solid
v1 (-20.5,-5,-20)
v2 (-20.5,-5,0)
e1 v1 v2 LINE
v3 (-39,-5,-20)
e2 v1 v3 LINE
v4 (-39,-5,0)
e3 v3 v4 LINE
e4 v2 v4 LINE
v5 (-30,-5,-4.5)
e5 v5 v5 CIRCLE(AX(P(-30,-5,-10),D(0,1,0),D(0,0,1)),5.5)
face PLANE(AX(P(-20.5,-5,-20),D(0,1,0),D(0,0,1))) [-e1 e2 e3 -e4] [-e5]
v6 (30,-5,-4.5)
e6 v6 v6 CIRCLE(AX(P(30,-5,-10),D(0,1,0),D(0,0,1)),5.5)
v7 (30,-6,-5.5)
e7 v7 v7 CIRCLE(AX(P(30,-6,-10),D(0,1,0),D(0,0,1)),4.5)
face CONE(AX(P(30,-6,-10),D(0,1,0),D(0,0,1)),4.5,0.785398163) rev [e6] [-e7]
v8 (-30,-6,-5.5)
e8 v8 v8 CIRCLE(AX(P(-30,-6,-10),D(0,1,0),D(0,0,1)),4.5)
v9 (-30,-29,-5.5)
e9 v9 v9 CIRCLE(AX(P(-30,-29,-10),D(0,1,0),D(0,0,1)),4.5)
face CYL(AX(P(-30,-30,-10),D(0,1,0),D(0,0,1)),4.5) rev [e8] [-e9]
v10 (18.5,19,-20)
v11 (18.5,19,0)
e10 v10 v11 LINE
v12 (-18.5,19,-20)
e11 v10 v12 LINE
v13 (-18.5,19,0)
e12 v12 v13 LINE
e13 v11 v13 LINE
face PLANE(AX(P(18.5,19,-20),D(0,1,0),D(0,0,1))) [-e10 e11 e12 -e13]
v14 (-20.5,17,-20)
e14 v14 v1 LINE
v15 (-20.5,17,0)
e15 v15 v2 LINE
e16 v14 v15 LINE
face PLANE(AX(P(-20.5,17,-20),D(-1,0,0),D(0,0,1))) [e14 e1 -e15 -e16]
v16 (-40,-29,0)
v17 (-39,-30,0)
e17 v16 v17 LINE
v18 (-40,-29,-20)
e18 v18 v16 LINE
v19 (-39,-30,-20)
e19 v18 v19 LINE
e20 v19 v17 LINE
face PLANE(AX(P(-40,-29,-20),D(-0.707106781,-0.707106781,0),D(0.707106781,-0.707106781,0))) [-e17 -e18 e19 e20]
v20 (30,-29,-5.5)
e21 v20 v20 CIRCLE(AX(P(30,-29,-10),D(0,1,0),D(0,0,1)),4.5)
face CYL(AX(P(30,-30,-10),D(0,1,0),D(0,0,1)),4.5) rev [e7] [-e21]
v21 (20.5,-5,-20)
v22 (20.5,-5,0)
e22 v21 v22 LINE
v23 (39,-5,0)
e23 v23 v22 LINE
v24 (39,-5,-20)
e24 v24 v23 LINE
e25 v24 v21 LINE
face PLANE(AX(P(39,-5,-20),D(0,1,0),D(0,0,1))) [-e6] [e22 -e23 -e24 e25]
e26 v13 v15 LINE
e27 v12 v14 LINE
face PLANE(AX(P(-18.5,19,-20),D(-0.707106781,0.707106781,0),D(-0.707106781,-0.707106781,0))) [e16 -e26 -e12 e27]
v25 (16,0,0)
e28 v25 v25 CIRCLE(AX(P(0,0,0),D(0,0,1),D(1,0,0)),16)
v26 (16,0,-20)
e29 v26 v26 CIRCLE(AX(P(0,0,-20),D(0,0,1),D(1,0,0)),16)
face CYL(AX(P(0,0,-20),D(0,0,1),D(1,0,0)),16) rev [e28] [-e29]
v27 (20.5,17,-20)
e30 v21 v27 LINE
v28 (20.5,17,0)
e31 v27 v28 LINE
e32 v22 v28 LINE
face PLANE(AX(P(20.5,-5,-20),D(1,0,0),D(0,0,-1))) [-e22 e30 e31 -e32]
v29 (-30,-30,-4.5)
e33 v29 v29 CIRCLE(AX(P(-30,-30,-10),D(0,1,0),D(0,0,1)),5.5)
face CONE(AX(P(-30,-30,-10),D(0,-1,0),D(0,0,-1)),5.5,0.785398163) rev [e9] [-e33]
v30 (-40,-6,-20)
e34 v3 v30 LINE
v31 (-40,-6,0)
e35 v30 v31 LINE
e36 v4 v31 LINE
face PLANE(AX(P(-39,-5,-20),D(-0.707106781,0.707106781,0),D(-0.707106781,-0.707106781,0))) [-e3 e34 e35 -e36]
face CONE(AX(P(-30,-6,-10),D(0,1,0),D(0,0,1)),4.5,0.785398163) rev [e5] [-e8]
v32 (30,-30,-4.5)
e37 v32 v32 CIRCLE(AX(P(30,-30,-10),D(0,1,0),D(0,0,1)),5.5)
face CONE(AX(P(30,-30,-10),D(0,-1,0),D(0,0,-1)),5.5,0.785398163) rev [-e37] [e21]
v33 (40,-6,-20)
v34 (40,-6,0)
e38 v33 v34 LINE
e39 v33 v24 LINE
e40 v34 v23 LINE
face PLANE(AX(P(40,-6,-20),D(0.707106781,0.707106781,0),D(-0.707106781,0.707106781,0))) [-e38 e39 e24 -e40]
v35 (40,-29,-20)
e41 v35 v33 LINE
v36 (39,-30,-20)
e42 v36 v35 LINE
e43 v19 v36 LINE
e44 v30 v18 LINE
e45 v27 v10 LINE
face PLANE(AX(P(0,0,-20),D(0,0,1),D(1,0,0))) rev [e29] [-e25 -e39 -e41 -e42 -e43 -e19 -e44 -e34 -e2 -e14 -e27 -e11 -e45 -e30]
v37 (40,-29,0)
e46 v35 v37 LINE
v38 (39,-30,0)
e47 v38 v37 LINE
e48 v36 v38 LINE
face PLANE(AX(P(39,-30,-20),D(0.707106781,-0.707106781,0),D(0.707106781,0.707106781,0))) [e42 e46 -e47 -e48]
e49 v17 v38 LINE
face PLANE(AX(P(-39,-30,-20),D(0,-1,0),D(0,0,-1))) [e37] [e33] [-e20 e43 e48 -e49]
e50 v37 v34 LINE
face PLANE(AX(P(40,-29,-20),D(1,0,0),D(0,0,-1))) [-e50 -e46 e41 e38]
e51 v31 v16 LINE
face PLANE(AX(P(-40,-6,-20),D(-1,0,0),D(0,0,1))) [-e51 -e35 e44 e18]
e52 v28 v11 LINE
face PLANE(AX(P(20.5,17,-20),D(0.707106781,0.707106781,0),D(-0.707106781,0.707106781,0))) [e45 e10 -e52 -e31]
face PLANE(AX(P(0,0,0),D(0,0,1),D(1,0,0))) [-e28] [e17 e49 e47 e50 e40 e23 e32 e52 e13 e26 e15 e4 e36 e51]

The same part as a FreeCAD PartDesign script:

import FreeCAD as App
import Part
import Sketcher

V = App.Vector


def add_polygon(sketch, points):
    """Adds a closed chain of lines whose ends are joined by coincident constraints."""
    first, n = sketch.GeometryCount, len(points)
    for a, b in zip(points, points[1:] + points[:1]):
        sketch.addGeometry(Part.LineSegment(App.Vector(*a, 0), App.Vector(*b, 0)), False)
    for i in range(n):
        sketch.addConstraint(Sketcher.Constraint("Coincident", first + i, 2, first + (i + 1) % n, 1))

doc = App.newDocument("Part")
params = doc.addObject("Spreadsheet::Sheet", "Params")
for row, (alias, value) in enumerate([
    ("sketch1_diameter", "32 mm"),
    ("sketch1_width", "78 mm"),
    ("sketch1_width2", "37 mm"),
    ("sketch1_height", "23 mm"),
    ("sketch1_height2", "22 mm"),
    ("pad1_length", "20 mm"),
    ("sketch2_height", "25 mm"),
    ("sketch2_height2", "23 mm"),
    ("sketch2_width", "5.5 mm"),
    ("groove_angle", "360 deg"),
    ("sketch3_height", "25 mm"),
    ("sketch3_height2", "23 mm"),
    ("sketch3_width", "5.5 mm"),
    ("groove2_angle", "360 deg"),
], start=1):
    params.set(f"A{row}", alias)
    params.set(f"B{row}", "=" + value)
    params.setAlias(f"B{row}", alias)

body = doc.addObject("PartDesign::Body", "Body")

# Sketch on XY plane
sketch1 = body.newObject("Sketcher::SketchObject", "Sketch")
sketch1.AttachmentSupport = (doc.getObject("XY_Plane"), [""])
sketch1.MapMode = "FlatFace"
add_polygon(sketch1, [(-40, -29), (-39, -30), (39, -30), (40, -29), (40, -6), (39, -5), (20.5, -5), (20.5, 17), (18.5, 19), (-18.5, 19), (-20.5, 17), (-20.5, -5), (-39, -5), (-40, -6)])  # lines 0-13
sketch1.addGeometry(Part.Circle(V(0, 0, 0), V(0, 0, 1), 16), False)  # 14
sketch1.addConstraint([
    Sketcher.Constraint("Horizontal", 1),
    Sketcher.Constraint("Vertical", 3),
    Sketcher.Constraint("Horizontal", 5),
    Sketcher.Constraint("Vertical", 6),
    Sketcher.Constraint("Horizontal", 8),
    Sketcher.Constraint("Vertical", 10),
    Sketcher.Constraint("Horizontal", 11),
    Sketcher.Constraint("Vertical", 13),
    Sketcher.Constraint("Coincident", 14, 3, -1, 1),
    Sketcher.Constraint("Symmetric", 6, 2, 9, 2, -2),
    Sketcher.Constraint("Symmetric", 4, 2, 11, 2, -2),
    Sketcher.Constraint("Symmetric", 3, 2, 12, 2, -2),
    Sketcher.Constraint("Perpendicular", 0, 2),
    Sketcher.Constraint("Perpendicular", 2, 4),
    Sketcher.Constraint("Parallel", 4, 7),
    Sketcher.Constraint("Perpendicular", 7, 9),
    Sketcher.Constraint("Parallel", 9, 12),
    Sketcher.Constraint("Horizontal", 2, 2, 13, 2),
    Sketcher.Constraint("Vertical", 1, 2, 4, 2),
    Sketcher.Constraint("Diameter", 14, 32.0),
    Sketcher.Constraint("DistanceX", 1, 1, 1, 2, 78.0),
    Sketcher.Constraint("DistanceX", 8, 2, 8, 1, 37.0),
    Sketcher.Constraint("DistanceY", 3, 1, 3, 2, 23.0),
    Sketcher.Constraint("DistanceY", 6, 1, 6, 2, 22.0),
    Sketcher.Constraint("DistanceX", 5, 2, 5, 1, 18.5),
    Sketcher.Constraint("DistanceY", 0, 2, -1, 1, 30.0),
    Sketcher.Constraint("DistanceX", -1, 1, 2, 2, 40.0),
])
sketch1.setExpression("Constraints[33]", "Params.sketch1_diameter")
sketch1.setExpression("Constraints[34]", "Params.sketch1_width")
sketch1.setExpression("Constraints[35]", "Params.sketch1_width2")
sketch1.setExpression("Constraints[36]", "Params.sketch1_height")
sketch1.setExpression("Constraints[37]", "Params.sketch1_height2")
pad1 = body.newObject("PartDesign::Pad", "Pad")
pad1.Profile = sketch1
pad1.setExpression("Length", "Params.pad1_length")
pad1.Reversed = True

# Sketch on XY plane
sketch2 = body.newObject("Sketcher::SketchObject", "Sketch001")
sketch2.AttachmentSupport = (doc.getObject("XY_Plane"), [""])
sketch2.MapMode = "FlatFace"
sketch2.AttachmentOffset = App.Placement(V(0, 0, -10), App.Rotation())
add_polygon(sketch2, [(35.5, -5), (30, -5), (30, -30), (35.5, -30), (34.5, -29), (34.5, -6)])  # lines 0-5
sketch2.addGeometry(Part.LineSegment(V(30, -30, 0), V(30, -5, 0)), True)  # axis
sketch2.addConstraint([
    Sketcher.Constraint("Horizontal", 0),
    Sketcher.Constraint("Vertical", 1),
    Sketcher.Constraint("Horizontal", 2),
    Sketcher.Constraint("Vertical", 4),
    Sketcher.Constraint("Vertical", 6),
    Sketcher.Constraint("Coincident", 6, 1, 1, 2),
    Sketcher.Constraint("Perpendicular", 3, 5),
    Sketcher.Constraint("Horizontal", 5, 2, 6, 2),
    Sketcher.Constraint("Vertical", 2, 2, 5, 2),
    Sketcher.Constraint("Equal", 3, 5),
    Sketcher.Constraint("DistanceY", 1, 2, 1, 1, 25.0),
    Sketcher.Constraint("DistanceY", 4, 1, 4, 2, 23.0),
    Sketcher.Constraint("DistanceX", 0, 2, 0, 1, 5.5),
    Sketcher.Constraint("DistanceX", -1, 1, 0, 2, 30.0),
    Sketcher.Constraint("DistanceY", 0, 2, -1, 1, 5.0),
])
sketch2.setExpression("Constraints[16]", "Params.sketch2_height")
sketch2.setExpression("Constraints[17]", "Params.sketch2_height2")
sketch2.setExpression("Constraints[18]", "Params.sketch2_width")
groove = body.newObject("PartDesign::Groove", "Groove")
groove.Profile = sketch2
groove.ReferenceAxis = (sketch2, ["Axis0"])
groove.setExpression("Angle", "Params.groove_angle")

# Sketch on XY plane
sketch3 = body.newObject("Sketcher::SketchObject", "Sketch002")
sketch3.AttachmentSupport = (doc.getObject("XY_Plane"), [""])
sketch3.MapMode = "FlatFace"
sketch3.AttachmentOffset = App.Placement(V(0, 0, -10), App.Rotation())
add_polygon(sketch3, [(-24.5, -5), (-30, -5), (-30, -30), (-24.5, -30), (-25.5, -29), (-25.5, -6)])  # lines 0-5
sketch3.addGeometry(Part.LineSegment(V(-30, -30, 0), V(-30, -5, 0)), True)  # axis
sketch3.addConstraint([
    Sketcher.Constraint("Horizontal", 0),
    Sketcher.Constraint("Vertical", 1),
    Sketcher.Constraint("Horizontal", 2),
    Sketcher.Constraint("Vertical", 4),
    Sketcher.Constraint("Vertical", 6),
    Sketcher.Constraint("Coincident", 6, 1, 1, 2),
    Sketcher.Constraint("Perpendicular", 3, 5),
    Sketcher.Constraint("Horizontal", 5, 2, 6, 2),
    Sketcher.Constraint("Vertical", 2, 2, 5, 2),
    Sketcher.Constraint("Equal", 3, 5),
    Sketcher.Constraint("DistanceY", 1, 2, 1, 1, 25.0),
    Sketcher.Constraint("DistanceY", 4, 1, 4, 2, 23.0),
    Sketcher.Constraint("DistanceX", 0, 2, 0, 1, 5.5),
    Sketcher.Constraint("DistanceX", 0, 2, -1, 1, 30.0),
    Sketcher.Constraint("DistanceY", 0, 2, -1, 1, 5.0),
])
sketch3.setExpression("Constraints[16]", "Params.sketch3_height")
sketch3.setExpression("Constraints[17]", "Params.sketch3_height2")
sketch3.setExpression("Constraints[18]", "Params.sketch3_width")
groove2 = body.newObject("PartDesign::Groove", "Groove001")
groove2.Profile = sketch3
groove2.ReferenceAxis = (sketch3, ["Axis0"])
groove2.setExpression("Angle", "Params.groove2_angle")

doc.recompute()
